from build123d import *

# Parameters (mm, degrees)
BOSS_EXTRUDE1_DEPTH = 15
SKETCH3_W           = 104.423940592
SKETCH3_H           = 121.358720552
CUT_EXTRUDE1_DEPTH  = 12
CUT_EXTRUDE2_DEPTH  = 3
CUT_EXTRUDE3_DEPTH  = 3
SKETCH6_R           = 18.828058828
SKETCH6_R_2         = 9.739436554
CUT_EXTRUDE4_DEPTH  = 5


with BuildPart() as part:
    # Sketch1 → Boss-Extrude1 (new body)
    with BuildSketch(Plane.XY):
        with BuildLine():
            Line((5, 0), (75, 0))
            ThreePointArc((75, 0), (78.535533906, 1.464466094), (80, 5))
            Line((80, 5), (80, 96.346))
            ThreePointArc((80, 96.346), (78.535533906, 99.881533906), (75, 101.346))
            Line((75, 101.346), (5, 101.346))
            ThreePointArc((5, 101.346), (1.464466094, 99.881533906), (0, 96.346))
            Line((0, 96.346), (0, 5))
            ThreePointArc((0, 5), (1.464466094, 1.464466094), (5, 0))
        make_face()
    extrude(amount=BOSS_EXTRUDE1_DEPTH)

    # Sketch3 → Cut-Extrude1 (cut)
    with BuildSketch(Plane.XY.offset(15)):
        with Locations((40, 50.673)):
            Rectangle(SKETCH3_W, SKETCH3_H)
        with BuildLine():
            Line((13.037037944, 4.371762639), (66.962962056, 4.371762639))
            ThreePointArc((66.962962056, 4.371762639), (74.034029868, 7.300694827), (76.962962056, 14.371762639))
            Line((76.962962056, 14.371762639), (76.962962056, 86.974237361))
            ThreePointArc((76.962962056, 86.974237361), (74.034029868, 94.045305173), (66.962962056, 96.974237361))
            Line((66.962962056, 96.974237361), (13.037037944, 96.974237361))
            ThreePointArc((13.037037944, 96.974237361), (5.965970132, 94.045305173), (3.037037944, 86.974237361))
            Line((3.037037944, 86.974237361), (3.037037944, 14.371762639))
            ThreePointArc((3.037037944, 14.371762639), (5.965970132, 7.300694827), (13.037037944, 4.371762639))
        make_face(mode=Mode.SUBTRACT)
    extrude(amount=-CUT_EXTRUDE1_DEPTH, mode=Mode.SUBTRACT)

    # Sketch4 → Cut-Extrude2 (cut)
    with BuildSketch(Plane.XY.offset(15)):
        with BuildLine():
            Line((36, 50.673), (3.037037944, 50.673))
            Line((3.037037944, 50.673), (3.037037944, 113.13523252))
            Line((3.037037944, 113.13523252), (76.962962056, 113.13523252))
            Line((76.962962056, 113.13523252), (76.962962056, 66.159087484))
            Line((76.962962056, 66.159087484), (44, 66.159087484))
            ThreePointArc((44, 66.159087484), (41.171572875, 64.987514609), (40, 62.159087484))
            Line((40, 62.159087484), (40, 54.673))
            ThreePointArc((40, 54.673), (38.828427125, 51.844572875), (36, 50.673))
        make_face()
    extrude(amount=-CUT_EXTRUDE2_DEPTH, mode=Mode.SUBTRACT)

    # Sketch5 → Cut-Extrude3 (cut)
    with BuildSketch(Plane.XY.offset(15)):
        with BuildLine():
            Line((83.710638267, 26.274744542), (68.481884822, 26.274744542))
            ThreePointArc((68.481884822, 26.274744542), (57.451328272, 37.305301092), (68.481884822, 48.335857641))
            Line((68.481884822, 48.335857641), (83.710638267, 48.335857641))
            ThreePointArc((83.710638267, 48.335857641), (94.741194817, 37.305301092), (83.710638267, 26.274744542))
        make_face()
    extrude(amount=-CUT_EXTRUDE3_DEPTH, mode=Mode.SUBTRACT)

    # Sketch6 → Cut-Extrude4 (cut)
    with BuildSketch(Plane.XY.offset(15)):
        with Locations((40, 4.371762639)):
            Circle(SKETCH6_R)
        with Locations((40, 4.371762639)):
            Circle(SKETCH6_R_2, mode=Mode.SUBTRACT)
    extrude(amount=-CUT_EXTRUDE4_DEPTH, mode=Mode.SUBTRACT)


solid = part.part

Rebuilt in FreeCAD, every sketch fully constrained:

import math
import FreeCAD as App
import Part
import Sketcher

V = App.Vector

doc = App.newDocument("Part")
body = doc.addObject("PartDesign::Body", "Body")

# Sketch on XY plane
sketch1 = doc.addObject("Sketcher::SketchObject", "Sketch")
body.addObject(sketch1)
sketch1.AttachmentSupport = (doc.XY_Plane, [""])
sketch1.MapMode = "FlatFace"
sketch1.addGeometry([
    Part.LineSegment(V(5, 0, 0), V(75, 0, 0)),  # 0
    Part.ArcOfCircle(Part.Circle(V(75, 5, 0), V(0, 0, 1), 5), math.radians(-90), math.radians(0)),  # 1
    Part.LineSegment(V(80, 5, 0), V(80, 96, 0)),  # 2
    Part.ArcOfCircle(Part.Circle(V(75, 96, 0), V(0, 0, 1), 5), math.radians(0), math.radians(90)),  # 3
    Part.LineSegment(V(75, 101, 0), V(5, 101, 0)),  # 4
    Part.ArcOfCircle(Part.Circle(V(5, 96, 0), V(0, 0, 1), 5), math.radians(90), math.radians(180)),  # 5
    Part.LineSegment(V(0, 96, 0), V(0, 5, 0)),  # 6
    Part.ArcOfCircle(Part.Circle(V(5, 5, 0), V(0, 0, 1), 5), math.radians(180), math.radians(270)),  # 7
], False)
sketch1.addConstraint([
    Sketcher.Constraint("Tangent", 0, 2, 1, 1),
    Sketcher.Constraint("Tangent", 1, 2, 2, 1),
    Sketcher.Constraint("Tangent", 2, 2, 3, 1),
    Sketcher.Constraint("Tangent", 3, 2, 4, 1),
    Sketcher.Constraint("Tangent", 4, 2, 5, 1),
    Sketcher.Constraint("Tangent", 5, 2, 6, 1),
    Sketcher.Constraint("Tangent", 6, 2, 7, 1),
    Sketcher.Constraint("Tangent", 7, 2, 0, 1),
    Sketcher.Constraint("Horizontal", 0),
    Sketcher.Constraint("Vertical", 2),
    Sketcher.Constraint("Horizontal", 4),
    Sketcher.Constraint("Vertical", 6),
    Sketcher.Constraint("Equal", 1, 3),
    Sketcher.Constraint("Equal", 3, 5),
    Sketcher.Constraint("Equal", 5, 7),
    Sketcher.Constraint("PointOnObject", 0, 2, -1),
    Sketcher.Constraint("PointOnObject", 5, 2, -2),
    Sketcher.Constraint("Radius", 1, 5.0),
    Sketcher.Constraint("DistanceX", 0, 1, 0, 2, 70.0),
    Sketcher.Constraint("DistanceY", 2, 1, 2, 2, 91.346),
])
pad1 = doc.addObject("PartDesign::Pad", "Pad")
body.addObject(pad1)
pad1.Profile = sketch1
pad1.Length = 15

# Sketch on XY plane
sketch2 = doc.addObject("Sketcher::SketchObject", "Sketch001")
body.addObject(sketch2)
sketch2.AttachmentSupport = (doc.XY_Plane, [""])
sketch2.MapMode = "FlatFace"
sketch2.AttachmentOffset = App.Placement(V(0, 0, 15), App.Rotation())
sketch2.addGeometry([
    Part.LineSegment(V(-12, 111, 0), V(-12, -10, 0)),  # 0
    Part.LineSegment(V(-12, -10, 0), V(92, -10, 0)),  # 1
    Part.LineSegment(V(92, -10, 0), V(92, 111, 0)),  # 2
    Part.LineSegment(V(92, 111, 0), V(-12, 111, 0)),  # 3
    Part.LineSegment(V(67, 4, 0), V(13, 4, 0)),  # 4
    Part.ArcOfCircle(Part.Circle(V(13, 14, 0), V(0, 0, 1), 10), math.radians(180), math.radians(270)),  # 5
    Part.LineSegment(V(3, 14, 0), V(3, 87, 0)),  # 6
    Part.ArcOfCircle(Part.Circle(V(13, 87, 0), V(0, 0, 1), 10), math.radians(90), math.radians(180)),  # 7
    Part.LineSegment(V(13, 97, 0), V(67, 97, 0)),  # 8
    Part.ArcOfCircle(Part.Circle(V(67, 87, 0), V(0, 0, 1), 10), math.radians(0), math.radians(90)),  # 9
    Part.LineSegment(V(77, 87, 0), V(77, 14, 0)),  # 10
    Part.ArcOfCircle(Part.Circle(V(67, 14, 0), V(0, 0, 1), 10), math.radians(-90), math.radians(0)),  # 11
], False)
sketch2.addConstraint([
    Sketcher.Constraint("Coincident", 0, 2, 1, 1),
    Sketcher.Constraint("Coincident", 1, 2, 2, 1),
    Sketcher.Constraint("Coincident", 2, 2, 3, 1),
    Sketcher.Constraint("Coincident", 3, 2, 0, 1),
    Sketcher.Constraint("Tangent", 4, 2, 5, 2),
    Sketcher.Constraint("Tangent", 5, 1, 6, 1),
    Sketcher.Constraint("Tangent", 6, 2, 7, 2),
    Sketcher.Constraint("Tangent", 7, 1, 8, 1),
    Sketcher.Constraint("Tangent", 8, 2, 9, 2),
    Sketcher.Constraint("Tangent", 9, 1, 10, 1),
    Sketcher.Constraint("Tangent", 10, 2, 11, 2),
    Sketcher.Constraint("Tangent", 11, 1, 4, 1),
    Sketcher.Constraint("Vertical", 0),
    Sketcher.Constraint("Horizontal", 1),
    Sketcher.Constraint("Vertical", 2),
    Sketcher.Constraint("Horizontal", 3),
    Sketcher.Constraint("Horizontal", 4),
    Sketcher.Constraint("Vertical", 6),
    Sketcher.Constraint("Horizontal", 8),
    Sketcher.Constraint("Vertical", 10),
    Sketcher.Constraint("Equal", 5, 7),
    Sketcher.Constraint("Equal", 7, 9),
    Sketcher.Constraint("Equal", 9, 11),
    Sketcher.Constraint("Radius", 5, 10.0),
    Sketcher.Constraint("DistanceX", 1, 1, 1, 2, 104.423941),
    Sketcher.Constraint("DistanceY", 0, 2, 0, 1, 121.358721),
    Sketcher.Constraint("DistanceX", 4, 2, 4, 1, 53.925924),
    Sketcher.Constraint("DistanceY", 6, 1, 6, 2, 72.602475),
    Sketcher.Constraint("DistanceX", 0, 2, -1, 1, 12.21197),
    Sketcher.Constraint("DistanceY", 0, 2, -1, 1, 10.00636),
    Sketcher.Constraint("DistanceX", 0, 2, 5, 3, 25.249008),
    Sketcher.Constraint("DistanceY", -1, 1, 5, 3, 14.371763),
])
pocket1 = doc.addObject("PartDesign::Pocket", "Pocket")
body.addObject(pocket1)
pocket1.Profile = sketch2
pocket1.Length = 12

# Sketch on XY plane
sketch3 = doc.addObject("Sketcher::SketchObject", "Sketch002")
body.addObject(sketch3)
sketch3.AttachmentSupport = (doc.XY_Plane, [""])
sketch3.MapMode = "FlatFace"
sketch3.AttachmentOffset = App.Placement(V(0, 0, 15), App.Rotation())
sketch3.addGeometry([
    Part.LineSegment(V(3, 50.7, 0), V(36, 50.7, 0)),  # 0
    Part.ArcOfCircle(Part.Circle(V(36, 54.7, 0), V(0, 0, 1), 4), math.radians(-90), math.radians(0)),  # 1
    Part.LineSegment(V(40, 54.7, 0), V(40, 62.2, 0)),  # 2
    Part.ArcOfCircle(Part.Circle(V(44, 62.2, 0), V(0, 0, 1), 4), math.radians(90), math.radians(180)),  # 3
    Part.LineSegment(V(44, 66.2, 0), V(77, 66.2, 0)),  # 4
    Part.LineSegment(V(77, 66.2, 0), V(77, 113.1, 0)),  # 5
    Part.LineSegment(V(77, 113.1, 0), V(3, 113.1, 0)),  # 6
    Part.LineSegment(V(3, 113.1, 0), V(3, 50.7, 0)),  # 7
], False)
sketch3.addConstraint([
    Sketcher.Constraint("Tangent", 0, 2, 1, 1),
    Sketcher.Constraint("Tangent", 1, 2, 2, 1),
    Sketcher.Constraint("Tangent", 2, 2, 3, 2),
    Sketcher.Constraint("Tangent", 3, 1, 4, 1),
    Sketcher.Constraint("Coincident", 4, 2, 5, 1),
    Sketcher.Constraint("Coincident", 5, 2, 6, 1),
    Sketcher.Constraint("Coincident", 6, 2, 7, 1),
    Sketcher.Constraint("Coincident", 7, 2, 0, 1),
    Sketcher.Constraint("Horizontal", 0),
    Sketcher.Constraint("Vertical", 2),
    Sketcher.Constraint("Horizontal", 4),
    Sketcher.Constraint("Vertical", 5),
    Sketcher.Constraint("Horizontal", 6),
    Sketcher.Constraint("Vertical", 7),
    Sketcher.Constraint("Equal", 1, 3),
    Sketcher.Constraint("Equal", 0, 4),
    Sketcher.Constraint("Radius", 1, 4.0),
    Sketcher.Constraint("DistanceX", -1, 1, 1, 3, 36.0),
    Sketcher.Constraint("DistanceY", -1, 1, 1, 3, 54.673),
    Sketcher.Constraint("DistanceX", 0, 1, 0, 2, 32.962962),
    Sketcher.Constraint("DistanceY", 2, 1, 2, 2, 7.486087),
    Sketcher.Constraint("DistanceY", 5, 1, 5, 2, 46.976145),
])
pocket2 = doc.addObject("PartDesign::Pocket", "Pocket001")
body.addObject(pocket2)
pocket2.Profile = sketch3
pocket2.Length = 3

# Sketch on XY plane
sketch4 = doc.addObject("Sketcher::SketchObject", "Sketch003")
body.addObject(sketch4)
sketch4.AttachmentSupport = (doc.XY_Plane, [""])
sketch4.MapMode = "FlatFace"
sketch4.AttachmentOffset = App.Placement(V(0, 0, 15), App.Rotation())
sketch4.addGeometry([
    Part.LineSegment(V(68, 26, 0), V(84, 26, 0)),
    Part.ArcOfCircle(Part.Circle(V(84, 37, 0), V(0, 0, 1), 11), math.radians(-90), math.radians(90)),
    Part.LineSegment(V(84, 48, 0), V(68, 48, 0)),
    Part.ArcOfCircle(Part.Circle(V(68, 37, 0), V(0, 0, 1), 11), math.radians(90), math.radians(270)),
], False)
sketch4.addConstraint([
    Sketcher.Constraint("Tangent", 0, 2, 1, 1),
    Sketcher.Constraint("Tangent", 1, 2, 2, 1),
    Sketcher.Constraint("Tangent", 2, 2, 3, 1),
    Sketcher.Constraint("Tangent", 3, 2, 0, 1),
    Sketcher.Constraint("Horizontal", 0),
    Sketcher.Constraint("Horizontal", 2),
    Sketcher.Constraint("Radius", 1, 11.030557),
    Sketcher.Constraint("DistanceY", -1, 1, 1, 3, 37.305301),
    Sketcher.Constraint("DistanceX", 0, 1, 0, 2, 15.228753),
    Sketcher.Constraint("DistanceX", -1, 1, 1, 3, 83.710638),
])
pocket3 = doc.addObject("PartDesign::Pocket", "Pocket002")
body.addObject(pocket3)
pocket3.Profile = sketch4
pocket3.Length = 3

# Sketch on XY plane
sketch5 = doc.addObject("Sketcher::SketchObject", "Sketch004")
body.addObject(sketch5)
sketch5.AttachmentSupport = (doc.XY_Plane, [""])
sketch5.MapMode = "FlatFace"
sketch5.AttachmentOffset = App.Placement(V(0, 0, 15), App.Rotation())
sketch5.addGeometry([
    Part.Circle(V(40, 4, 0), V(0, 0, 1), 19),
    Part.Circle(V(40, 4, 0), V(0, 0, 1), 10),
], False)
sketch5.addConstraint([
    Sketcher.Constraint("Coincident", 1, 3, 0, 3),
    Sketcher.Constraint("DistanceX", -1, 1, 0, 3, 40.0),
    Sketcher.Constraint("Diameter", 0, 37.656118),
    Sketcher.Constraint("Diameter", 1, 19.478873),
    Sketcher.Constraint("DistanceY", -1, 1, 0, 3, 4.371763),
])
pocket4 = doc.addObject("PartDesign::Pocket", "Pocket003")
body.addObject(pocket4)
pocket4.Profile = sketch5
pocket4.Length = 5

doc.recompute()
